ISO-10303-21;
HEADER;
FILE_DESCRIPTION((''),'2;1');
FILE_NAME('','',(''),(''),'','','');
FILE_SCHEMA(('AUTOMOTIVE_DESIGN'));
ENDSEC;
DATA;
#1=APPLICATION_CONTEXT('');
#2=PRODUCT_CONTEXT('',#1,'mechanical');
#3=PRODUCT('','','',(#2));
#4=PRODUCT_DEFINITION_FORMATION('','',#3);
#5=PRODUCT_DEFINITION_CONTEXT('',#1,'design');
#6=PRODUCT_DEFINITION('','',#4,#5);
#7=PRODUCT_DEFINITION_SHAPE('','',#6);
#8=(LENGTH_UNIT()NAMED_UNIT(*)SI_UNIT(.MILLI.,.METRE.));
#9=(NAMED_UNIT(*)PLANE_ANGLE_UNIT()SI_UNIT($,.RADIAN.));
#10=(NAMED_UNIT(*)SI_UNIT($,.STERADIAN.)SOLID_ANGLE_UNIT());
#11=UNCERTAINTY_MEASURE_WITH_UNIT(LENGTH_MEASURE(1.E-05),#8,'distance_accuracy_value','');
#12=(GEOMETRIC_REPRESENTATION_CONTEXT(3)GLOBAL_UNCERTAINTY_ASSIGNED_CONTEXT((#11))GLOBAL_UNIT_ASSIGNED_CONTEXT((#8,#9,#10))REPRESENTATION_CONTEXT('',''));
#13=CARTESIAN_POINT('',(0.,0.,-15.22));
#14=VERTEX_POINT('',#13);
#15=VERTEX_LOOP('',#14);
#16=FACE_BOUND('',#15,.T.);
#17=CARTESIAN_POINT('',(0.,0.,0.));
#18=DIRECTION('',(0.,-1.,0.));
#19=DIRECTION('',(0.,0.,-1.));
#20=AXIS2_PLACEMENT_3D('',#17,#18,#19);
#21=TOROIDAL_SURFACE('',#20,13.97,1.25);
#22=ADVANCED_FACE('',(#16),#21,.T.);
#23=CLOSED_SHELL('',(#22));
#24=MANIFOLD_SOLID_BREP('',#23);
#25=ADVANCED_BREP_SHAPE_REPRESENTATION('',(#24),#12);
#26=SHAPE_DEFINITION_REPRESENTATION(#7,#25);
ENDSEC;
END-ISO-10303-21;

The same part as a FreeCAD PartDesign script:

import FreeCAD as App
import Part
import Sketcher
Q = App.Units.Quantity

doc = App.newDocument("Part")
body = doc.addObject("PartDesign::Body", "Body")

# Sketch on XY plane
sketch1 = doc.addObject("Sketcher::SketchObject", "Sketch")
body.addObject(sketch1)
sketch1.AttachmentSupport = (doc.XY_Plane, [""])
sketch1.MapMode = "FlatFace"
sketch1.addGeometry(Part.Circle(App.Vector(-13.97, 0, 0), App.Vector(0, 0, 1), 1.25), False)
sketch1.addConstraint(Sketcher.Constraint("PointOnObject", 0, 3, -1))
sketch1.addConstraint(Sketcher.Constraint("Diameter", 0, Q("2.5 mm")))
sketch1.addConstraint(Sketcher.Constraint("DistanceX", 0, 3, -1, 1, Q("13.97 mm")))
revolution = doc.addObject("PartDesign::Revolution", "Revolution")
body.addObject(revolution)
revolution.Profile = sketch1
revolution.ReferenceAxis = (sketch1, ["V_Axis"])
revolution.Angle = 360

doc.recompute()
